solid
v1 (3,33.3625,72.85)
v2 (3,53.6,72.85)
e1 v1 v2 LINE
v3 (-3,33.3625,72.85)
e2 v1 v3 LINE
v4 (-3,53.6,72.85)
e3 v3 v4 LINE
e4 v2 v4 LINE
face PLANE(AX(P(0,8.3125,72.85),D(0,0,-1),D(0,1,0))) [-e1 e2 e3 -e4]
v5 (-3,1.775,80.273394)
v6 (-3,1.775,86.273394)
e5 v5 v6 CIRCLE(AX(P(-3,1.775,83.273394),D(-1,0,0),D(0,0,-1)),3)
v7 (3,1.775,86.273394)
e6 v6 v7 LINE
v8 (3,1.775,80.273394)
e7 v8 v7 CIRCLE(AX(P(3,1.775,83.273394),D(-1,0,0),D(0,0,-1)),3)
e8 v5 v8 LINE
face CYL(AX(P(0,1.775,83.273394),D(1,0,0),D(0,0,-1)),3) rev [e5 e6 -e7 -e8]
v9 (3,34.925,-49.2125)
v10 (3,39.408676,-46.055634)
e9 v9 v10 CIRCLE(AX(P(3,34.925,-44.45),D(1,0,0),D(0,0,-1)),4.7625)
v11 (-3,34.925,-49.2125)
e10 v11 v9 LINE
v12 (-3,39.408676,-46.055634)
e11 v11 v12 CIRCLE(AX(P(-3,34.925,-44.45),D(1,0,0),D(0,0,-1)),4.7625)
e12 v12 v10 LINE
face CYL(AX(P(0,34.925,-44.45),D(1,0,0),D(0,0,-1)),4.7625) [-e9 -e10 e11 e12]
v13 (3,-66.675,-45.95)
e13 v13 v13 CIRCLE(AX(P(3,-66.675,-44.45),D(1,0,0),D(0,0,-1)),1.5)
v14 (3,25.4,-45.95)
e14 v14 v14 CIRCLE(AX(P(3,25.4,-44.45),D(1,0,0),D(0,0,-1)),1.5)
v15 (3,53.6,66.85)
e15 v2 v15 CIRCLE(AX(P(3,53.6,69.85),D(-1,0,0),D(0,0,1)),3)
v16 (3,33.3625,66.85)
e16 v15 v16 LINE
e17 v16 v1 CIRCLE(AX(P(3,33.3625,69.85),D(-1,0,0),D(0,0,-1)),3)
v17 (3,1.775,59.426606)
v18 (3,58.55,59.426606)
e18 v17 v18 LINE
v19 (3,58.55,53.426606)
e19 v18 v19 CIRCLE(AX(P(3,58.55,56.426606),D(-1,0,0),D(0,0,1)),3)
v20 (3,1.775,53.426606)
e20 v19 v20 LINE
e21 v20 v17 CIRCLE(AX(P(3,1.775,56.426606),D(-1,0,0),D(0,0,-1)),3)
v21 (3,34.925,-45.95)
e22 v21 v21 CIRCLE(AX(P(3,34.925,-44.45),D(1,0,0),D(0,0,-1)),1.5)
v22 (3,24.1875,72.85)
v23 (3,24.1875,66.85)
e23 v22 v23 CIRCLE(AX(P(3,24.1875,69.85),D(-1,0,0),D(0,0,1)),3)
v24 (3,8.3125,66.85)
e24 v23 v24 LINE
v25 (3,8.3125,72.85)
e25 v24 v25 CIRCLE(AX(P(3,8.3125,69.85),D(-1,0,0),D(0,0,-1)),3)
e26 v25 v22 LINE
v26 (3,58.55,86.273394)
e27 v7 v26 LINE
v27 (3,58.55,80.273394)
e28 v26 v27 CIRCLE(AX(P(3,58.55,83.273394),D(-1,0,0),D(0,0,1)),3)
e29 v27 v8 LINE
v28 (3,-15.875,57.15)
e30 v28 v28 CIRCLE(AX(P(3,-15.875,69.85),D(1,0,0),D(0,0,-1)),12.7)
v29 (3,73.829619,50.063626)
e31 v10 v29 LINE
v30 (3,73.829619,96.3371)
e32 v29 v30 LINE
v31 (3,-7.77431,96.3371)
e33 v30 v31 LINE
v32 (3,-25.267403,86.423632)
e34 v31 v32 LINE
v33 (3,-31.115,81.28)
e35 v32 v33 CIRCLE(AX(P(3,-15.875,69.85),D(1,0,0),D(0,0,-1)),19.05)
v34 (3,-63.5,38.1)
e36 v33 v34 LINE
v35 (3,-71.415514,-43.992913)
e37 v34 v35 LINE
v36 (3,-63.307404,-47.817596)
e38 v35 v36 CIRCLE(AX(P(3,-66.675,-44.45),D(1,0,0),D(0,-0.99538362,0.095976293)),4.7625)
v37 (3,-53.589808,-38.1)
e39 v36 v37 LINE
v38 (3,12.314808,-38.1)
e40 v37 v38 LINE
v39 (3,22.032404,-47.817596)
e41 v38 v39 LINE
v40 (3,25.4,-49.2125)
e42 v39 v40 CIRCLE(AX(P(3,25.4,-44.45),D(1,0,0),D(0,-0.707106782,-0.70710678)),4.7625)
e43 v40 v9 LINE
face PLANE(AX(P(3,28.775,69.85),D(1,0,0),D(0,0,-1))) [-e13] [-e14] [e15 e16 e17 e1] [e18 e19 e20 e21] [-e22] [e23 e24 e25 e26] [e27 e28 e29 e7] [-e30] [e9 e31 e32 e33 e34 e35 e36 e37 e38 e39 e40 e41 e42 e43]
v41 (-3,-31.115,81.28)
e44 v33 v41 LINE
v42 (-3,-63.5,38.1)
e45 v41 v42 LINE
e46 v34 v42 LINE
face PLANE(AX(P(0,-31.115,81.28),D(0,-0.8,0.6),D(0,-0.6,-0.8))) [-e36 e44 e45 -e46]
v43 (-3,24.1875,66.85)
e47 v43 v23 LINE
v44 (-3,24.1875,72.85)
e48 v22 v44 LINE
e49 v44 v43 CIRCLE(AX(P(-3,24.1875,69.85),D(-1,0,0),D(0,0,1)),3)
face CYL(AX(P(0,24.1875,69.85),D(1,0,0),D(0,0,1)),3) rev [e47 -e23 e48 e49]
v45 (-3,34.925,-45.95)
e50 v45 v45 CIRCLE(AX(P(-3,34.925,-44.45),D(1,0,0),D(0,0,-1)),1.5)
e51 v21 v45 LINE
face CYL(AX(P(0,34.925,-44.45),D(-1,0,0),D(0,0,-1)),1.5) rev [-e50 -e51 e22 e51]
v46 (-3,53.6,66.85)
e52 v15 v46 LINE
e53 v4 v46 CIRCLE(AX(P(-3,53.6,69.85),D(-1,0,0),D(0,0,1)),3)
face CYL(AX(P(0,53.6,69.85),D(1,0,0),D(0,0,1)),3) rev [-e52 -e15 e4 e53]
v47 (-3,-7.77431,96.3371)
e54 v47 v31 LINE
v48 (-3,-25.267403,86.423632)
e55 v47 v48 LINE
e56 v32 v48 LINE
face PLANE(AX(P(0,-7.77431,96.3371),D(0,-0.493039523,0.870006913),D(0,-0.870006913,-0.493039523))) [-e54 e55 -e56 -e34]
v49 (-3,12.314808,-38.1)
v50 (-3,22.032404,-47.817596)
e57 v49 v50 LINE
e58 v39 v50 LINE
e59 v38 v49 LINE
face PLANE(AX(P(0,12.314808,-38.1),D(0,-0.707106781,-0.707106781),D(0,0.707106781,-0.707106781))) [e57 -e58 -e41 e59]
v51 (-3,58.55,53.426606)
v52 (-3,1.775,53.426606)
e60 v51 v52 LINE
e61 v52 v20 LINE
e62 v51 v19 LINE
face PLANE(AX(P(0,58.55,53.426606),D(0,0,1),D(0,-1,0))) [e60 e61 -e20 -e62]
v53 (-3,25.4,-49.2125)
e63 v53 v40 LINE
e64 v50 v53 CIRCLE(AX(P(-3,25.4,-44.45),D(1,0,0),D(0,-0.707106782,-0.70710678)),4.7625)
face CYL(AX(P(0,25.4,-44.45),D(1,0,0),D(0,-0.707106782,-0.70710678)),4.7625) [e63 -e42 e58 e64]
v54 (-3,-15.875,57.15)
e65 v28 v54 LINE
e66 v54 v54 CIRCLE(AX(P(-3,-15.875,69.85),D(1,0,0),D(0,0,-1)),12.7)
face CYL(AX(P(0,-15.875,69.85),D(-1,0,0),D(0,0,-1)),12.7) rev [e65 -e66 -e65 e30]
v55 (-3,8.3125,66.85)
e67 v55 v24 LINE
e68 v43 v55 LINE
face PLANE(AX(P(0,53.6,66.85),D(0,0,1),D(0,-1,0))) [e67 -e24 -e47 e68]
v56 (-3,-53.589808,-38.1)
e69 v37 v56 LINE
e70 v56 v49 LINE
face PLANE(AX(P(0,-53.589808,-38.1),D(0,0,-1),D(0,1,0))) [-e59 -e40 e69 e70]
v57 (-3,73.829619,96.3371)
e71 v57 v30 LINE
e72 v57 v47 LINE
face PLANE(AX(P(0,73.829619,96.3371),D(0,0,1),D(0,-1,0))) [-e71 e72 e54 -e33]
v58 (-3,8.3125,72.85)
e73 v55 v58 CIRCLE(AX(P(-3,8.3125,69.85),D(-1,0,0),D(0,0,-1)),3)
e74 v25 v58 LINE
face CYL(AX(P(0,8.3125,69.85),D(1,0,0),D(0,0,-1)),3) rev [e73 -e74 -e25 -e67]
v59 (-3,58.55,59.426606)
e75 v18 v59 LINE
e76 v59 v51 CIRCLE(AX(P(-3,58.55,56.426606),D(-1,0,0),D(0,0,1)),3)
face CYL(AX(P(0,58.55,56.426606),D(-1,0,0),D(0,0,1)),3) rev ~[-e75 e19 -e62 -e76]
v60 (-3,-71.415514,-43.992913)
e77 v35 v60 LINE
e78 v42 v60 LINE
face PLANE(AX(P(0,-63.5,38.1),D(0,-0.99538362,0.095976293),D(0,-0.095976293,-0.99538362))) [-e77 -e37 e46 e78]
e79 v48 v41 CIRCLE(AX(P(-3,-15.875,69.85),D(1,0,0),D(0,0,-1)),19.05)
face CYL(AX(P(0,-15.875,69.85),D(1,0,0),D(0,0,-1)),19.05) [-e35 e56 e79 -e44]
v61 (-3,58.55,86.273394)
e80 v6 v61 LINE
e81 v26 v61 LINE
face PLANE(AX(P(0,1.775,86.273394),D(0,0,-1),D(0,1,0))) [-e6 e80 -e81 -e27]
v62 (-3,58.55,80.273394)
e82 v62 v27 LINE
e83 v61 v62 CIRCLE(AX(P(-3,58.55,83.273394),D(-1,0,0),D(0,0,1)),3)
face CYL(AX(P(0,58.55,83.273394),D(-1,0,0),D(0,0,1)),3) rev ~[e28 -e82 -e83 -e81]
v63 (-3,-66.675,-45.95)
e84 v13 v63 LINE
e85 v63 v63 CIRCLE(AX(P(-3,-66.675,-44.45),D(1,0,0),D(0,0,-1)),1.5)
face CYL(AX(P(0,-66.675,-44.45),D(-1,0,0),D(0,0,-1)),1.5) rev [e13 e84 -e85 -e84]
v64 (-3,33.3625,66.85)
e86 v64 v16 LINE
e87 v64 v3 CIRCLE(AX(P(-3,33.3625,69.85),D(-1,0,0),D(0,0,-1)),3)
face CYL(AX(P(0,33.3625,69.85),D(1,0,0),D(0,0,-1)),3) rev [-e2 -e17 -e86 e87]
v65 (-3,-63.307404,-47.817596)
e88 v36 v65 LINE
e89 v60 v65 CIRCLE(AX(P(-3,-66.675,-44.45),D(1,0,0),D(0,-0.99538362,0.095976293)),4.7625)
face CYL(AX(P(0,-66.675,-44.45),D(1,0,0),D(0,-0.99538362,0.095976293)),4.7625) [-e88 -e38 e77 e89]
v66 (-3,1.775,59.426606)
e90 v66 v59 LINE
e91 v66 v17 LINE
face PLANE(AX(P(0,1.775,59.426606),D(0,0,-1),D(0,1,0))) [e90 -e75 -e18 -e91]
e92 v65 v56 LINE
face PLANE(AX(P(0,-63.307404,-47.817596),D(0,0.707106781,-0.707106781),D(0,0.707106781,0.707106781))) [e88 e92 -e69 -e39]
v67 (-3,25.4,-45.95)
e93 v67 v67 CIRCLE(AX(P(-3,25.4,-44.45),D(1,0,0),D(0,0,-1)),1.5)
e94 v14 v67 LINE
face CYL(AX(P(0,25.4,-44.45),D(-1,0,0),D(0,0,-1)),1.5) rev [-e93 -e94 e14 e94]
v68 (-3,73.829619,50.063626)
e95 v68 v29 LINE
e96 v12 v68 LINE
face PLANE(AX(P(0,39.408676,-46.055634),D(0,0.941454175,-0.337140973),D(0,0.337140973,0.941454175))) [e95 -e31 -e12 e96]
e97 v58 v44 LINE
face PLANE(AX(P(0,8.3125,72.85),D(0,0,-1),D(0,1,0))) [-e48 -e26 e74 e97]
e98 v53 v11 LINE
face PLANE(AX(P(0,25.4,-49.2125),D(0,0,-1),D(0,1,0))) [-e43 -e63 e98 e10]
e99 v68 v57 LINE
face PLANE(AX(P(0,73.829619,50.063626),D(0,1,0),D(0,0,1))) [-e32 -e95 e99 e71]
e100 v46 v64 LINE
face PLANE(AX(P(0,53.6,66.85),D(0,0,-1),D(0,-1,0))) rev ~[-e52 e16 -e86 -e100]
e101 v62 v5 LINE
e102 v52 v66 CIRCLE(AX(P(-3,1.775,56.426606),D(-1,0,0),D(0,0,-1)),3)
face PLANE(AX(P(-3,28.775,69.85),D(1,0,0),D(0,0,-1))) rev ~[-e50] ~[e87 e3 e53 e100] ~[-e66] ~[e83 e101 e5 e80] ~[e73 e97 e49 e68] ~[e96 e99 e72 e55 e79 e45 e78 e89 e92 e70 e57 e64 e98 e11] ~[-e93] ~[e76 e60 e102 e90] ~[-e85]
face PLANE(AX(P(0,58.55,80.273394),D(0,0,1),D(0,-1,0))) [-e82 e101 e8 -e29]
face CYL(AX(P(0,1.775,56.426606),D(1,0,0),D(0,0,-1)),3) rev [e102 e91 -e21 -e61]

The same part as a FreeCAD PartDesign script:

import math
import FreeCAD as App
import Part
import Sketcher
from FreeCAD import Vector
Q = App.Units.Quantity

doc = App.newDocument("Part")
body = doc.addObject("PartDesign::Body", "Body")

sketch1 = body.newObject("Sketcher::SketchObject", "Sketch")
sketch1.AttachmentSupport = (doc.getObject("YZ_Plane"), [""])
sketch1.MapMode = "FlatFace"
sketch1.addGeometry(Part.ArcOfCircle(Part.Circle(Vector(25.4, -44.45, 0), Vector(0, 0, 1), 4.7625), math.radians(-135), math.radians(-90)), False)
sketch1.addGeometry(Part.LineSegment(Vector(25.4, -49.2125, 0), Vector(34.925, -49.2125, 0)), False)
sketch1.addGeometry(Part.ArcOfCircle(Part.Circle(Vector(34.925, -44.45, 0), Vector(0, 0, 1), 4.7625), math.radians(-90), math.radians(-19.702782)), False)
sketch1.addGeometry(Part.LineSegment(Vector(39.408676, -46.055634, 0), Vector(73.829619, 50.063626, 0)), False)
sketch1.addGeometry(Part.LineSegment(Vector(73.829619, 50.063626, 0), Vector(73.829619, 96.3371, 0)), False)
sketch1.addGeometry(Part.LineSegment(Vector(73.829619, 96.3371, 0), Vector(-7.77431, 96.3371, 0)), False)
sketch1.addGeometry(Part.LineSegment(Vector(-7.77431, 96.3371, 0), Vector(-25.267403, 86.423632, 0)), False)
sketch1.addGeometry(Part.ArcOfCircle(Part.Circle(Vector(-15.875, 69.85, 0), Vector(0, 0, 1), 19.05), math.radians(119.540557), math.radians(143.130102)), False)
sketch1.addGeometry(Part.LineSegment(Vector(-31.115, 81.28, 0), Vector(-63.5, 38.1, 0)), False)
sketch1.addGeometry(Part.LineSegment(Vector(-63.5, 38.1, 0), Vector(-71.415514, -43.992913, 0)), False)
sketch1.addGeometry(Part.ArcOfCircle(Part.Circle(Vector(-66.675, -44.45, 0), Vector(0, 0, 1), 4.7625), math.radians(174.492486), math.radians(315)), False)
sketch1.addGeometry(Part.LineSegment(Vector(-63.307404, -47.817596, 0), Vector(-53.589808, -38.1, 0)), False)
sketch1.addGeometry(Part.LineSegment(Vector(-53.589808, -38.1, 0), Vector(12.314808, -38.1, 0)), False)
sketch1.addGeometry(Part.LineSegment(Vector(12.314808, -38.1, 0), Vector(22.032404, -47.817596, 0)), False)
sketch1.addGeometry(Part.Circle(Vector(-66.675, -44.45, 0), Vector(0, 0, 1), 1.5), False)
sketch1.addGeometry(Part.LineSegment(Vector(58.55, 80.273394, 0), Vector(1.775, 80.273394, 0)), False)
sketch1.addGeometry(Part.ArcOfCircle(Part.Circle(Vector(1.775, 83.273394, 0), Vector(0, 0, 1), 3), math.radians(90), math.radians(270)), False)
sketch1.addGeometry(Part.LineSegment(Vector(1.775, 86.273394, 0), Vector(58.55, 86.273394, 0)), False)
sketch1.addGeometry(Part.ArcOfCircle(Part.Circle(Vector(58.55, 83.273394, 0), Vector(0, 0, 1), 3), math.radians(-90), math.radians(90)), False)
sketch1.addGeometry(Part.LineSegment(Vector(53.6, 66.85, 0), Vector(33.3625, 66.85, 0)), False)
sketch1.addGeometry(Part.ArcOfCircle(Part.Circle(Vector(33.3625, 69.85, 0), Vector(0, 0, 1), 3), math.radians(90), math.radians(270)), False)
sketch1.addGeometry(Part.LineSegment(Vector(33.3625, 72.85, 0), Vector(53.6, 72.85, 0)), False)
sketch1.addGeometry(Part.ArcOfCircle(Part.Circle(Vector(53.6, 69.85, 0), Vector(0, 0, 1), 3), math.radians(-90), math.radians(90)), False)
sketch1.addGeometry(Part.LineSegment(Vector(24.1875, 66.85, 0), Vector(8.3125, 66.85, 0)), False)
sketch1.addGeometry(Part.ArcOfCircle(Part.Circle(Vector(8.3125, 69.85, 0), Vector(0, 0, 1), 3), math.radians(90), math.radians(270)), False)
sketch1.addGeometry(Part.LineSegment(Vector(8.3125, 72.85, 0), Vector(24.1875, 72.85, 0)), False)
sketch1.addGeometry(Part.ArcOfCircle(Part.Circle(Vector(24.1875, 69.85, 0), Vector(0, 0, 1), 3), math.radians(-90), math.radians(90)), False)
sketch1.addGeometry(Part.LineSegment(Vector(58.55, 53.426606, 0), Vector(1.775, 53.426606, 0)), False)
sketch1.addGeometry(Part.ArcOfCircle(Part.Circle(Vector(1.775, 56.426606, 0), Vector(0, 0, 1), 3), math.radians(90), math.radians(270)), False)
sketch1.addGeometry(Part.LineSegment(Vector(1.775, 59.426606, 0), Vector(58.55, 59.426606, 0)), False)
sketch1.addGeometry(Part.ArcOfCircle(Part.Circle(Vector(58.55, 56.426606, 0), Vector(0, 0, 1), 3), math.radians(-90), math.radians(90)), False)
sketch1.addGeometry(Part.Circle(Vector(25.4, -44.45, 0), Vector(0, 0, 1), 1.5), False)
sketch1.addGeometry(Part.Circle(Vector(34.925, -44.45, 0), Vector(0, 0, 1), 1.5), False)
sketch1.addGeometry(Part.Circle(Vector(-15.875, 69.85, 0), Vector(0, 0, 1), 12.7), False)
sketch1.addConstraint(Sketcher.Constraint("Tangent", 0, 2, 1, 1))
sketch1.addConstraint(Sketcher.Constraint("Tangent", 1, 2, 2, 1))
sketch1.addConstraint(Sketcher.Constraint("Tangent", 2, 2, 3, 1))
sketch1.addConstraint(Sketcher.Constraint("Coincident", 3, 2, 4, 1))
sketch1.addConstraint(Sketcher.Constraint("Coincident", 4, 2, 5, 1))
sketch1.addConstraint(Sketcher.Constraint("Coincident", 5, 2, 6, 1))
sketch1.addConstraint(Sketcher.Constraint("Tangent", 6, 2, 7, 1))
sketch1.addConstraint(Sketcher.Constraint("Tangent", 7, 2, 8, 1))
sketch1.addConstraint(Sketcher.Constraint("Coincident", 8, 2, 9, 1))
sketch1.addConstraint(Sketcher.Constraint("Tangent", 9, 2, 10, 1))
sketch1.addConstraint(Sketcher.Constraint("Tangent", 10, 2, 11, 1))
sketch1.addConstraint(Sketcher.Constraint("Coincident", 11, 2, 12, 1))
sketch1.addConstraint(Sketcher.Constraint("Coincident", 12, 2, 13, 1))
sketch1.addConstraint(Sketcher.Constraint("Tangent", 13, 2, 0, 1))
sketch1.addConstraint(Sketcher.Constraint("Tangent", 15, 2, 16, 2))
sketch1.addConstraint(Sketcher.Constraint("Tangent", 16, 1, 17, 1))
sketch1.addConstraint(Sketcher.Constraint("Tangent", 17, 2, 18, 2))
sketch1.addConstraint(Sketcher.Constraint("Tangent", 18, 1, 15, 1))
sketch1.addConstraint(Sketcher.Constraint("Tangent", 19, 2, 20, 2))
sketch1.addConstraint(Sketcher.Constraint("Tangent", 20, 1, 21, 1))
sketch1.addConstraint(Sketcher.Constraint("Tangent", 21, 2, 22, 2))
sketch1.addConstraint(Sketcher.Constraint("Tangent", 22, 1, 19, 1))
sketch1.addConstraint(Sketcher.Constraint("Tangent", 23, 2, 24, 2))
sketch1.addConstraint(Sketcher.Constraint("Tangent", 24, 1, 25, 1))
sketch1.addConstraint(Sketcher.Constraint("Tangent", 25, 2, 26, 2))
sketch1.addConstraint(Sketcher.Constraint("Tangent", 26, 1, 23, 1))
sketch1.addConstraint(Sketcher.Constraint("Tangent", 27, 2, 28, 2))
sketch1.addConstraint(Sketcher.Constraint("Tangent", 28, 1, 29, 1))
sketch1.addConstraint(Sketcher.Constraint("Tangent", 29, 2, 30, 2))
sketch1.addConstraint(Sketcher.Constraint("Tangent", 30, 1, 27, 1))
sketch1.addConstraint(Sketcher.Constraint("Horizontal", 1))
sketch1.addConstraint(Sketcher.Constraint("Vertical", 4))
sketch1.addConstraint(Sketcher.Constraint("Horizontal", 5))
sketch1.addConstraint(Sketcher.Constraint("Horizontal", 12))
sketch1.addConstraint(Sketcher.Constraint("Horizontal", 15))
sketch1.addConstraint(Sketcher.Constraint("Horizontal", 17))
sketch1.addConstraint(Sketcher.Constraint("Horizontal", 19))
sketch1.addConstraint(Sketcher.Constraint("Horizontal", 21))
sketch1.addConstraint(Sketcher.Constraint("Horizontal", 23))
sketch1.addConstraint(Sketcher.Constraint("Horizontal", 25))
sketch1.addConstraint(Sketcher.Constraint("Horizontal", 27))
sketch1.addConstraint(Sketcher.Constraint("Horizontal", 29))
sketch1.addConstraint(Sketcher.Constraint("Coincident", 14, 3, 10, 3))
sketch1.addConstraint(Sketcher.Constraint("Coincident", 31, 3, 0, 3))
sketch1.addConstraint(Sketcher.Constraint("Coincident", 32, 3, 2, 3))
sketch1.addConstraint(Sketcher.Constraint("Coincident", 33, 3, 7, 3))
sketch1.addConstraint(Sketcher.Constraint("Equal", 0, 2))
sketch1.addConstraint(Sketcher.Constraint("Equal", 2, 10))
sketch1.addConstraint(Sketcher.Constraint("Equal", 18, 20))
sketch1.addConstraint(Sketcher.Constraint("Equal", 22, 24))
sketch1.addConstraint(Sketcher.Constraint("Equal", 26, 28))
sketch1.addConstraint(Sketcher.Constraint("Equal", 14, 31))
sketch1.addConstraint(Sketcher.Constraint("Equal", 31, 32))
sketch1.addConstraint(Sketcher.Constraint("Perpendicular", 11, 13))
sketch1.addConstraint(Sketcher.Constraint("Horizontal", 2, 3, 10, 3))
sketch1.addConstraint(Sketcher.Constraint("Horizontal", 7, 3, 20, 3))
sketch1.addConstraint(Sketcher.Constraint("Horizontal", 22, 3, 24, 3))
sketch1.addConstraint(Sketcher.Constraint("Horizontal", 10, 2, 13, 2))
sketch1.addConstraint(Sketcher.Constraint("Vertical", 16, 3, 28, 3))
sketch1.addConstraint(Sketcher.Constraint("Vertical", 18, 3, 30, 3))
sketch1.addConstraint(Sketcher.Constraint("Diameter", 33, Q("1 in")))
sketch1.addConstraint(Sketcher.Constraint("Radius", 7, Q("0.75 in")))
sketch1.addConstraint(Sketcher.Constraint("DistanceX", -1, 1, 0, 3, Q("1 in")))
sketch1.addConstraint(Sketcher.Constraint("Radius", 0, Q("0.1875 in")))
sketch1.addConstraint(Sketcher.Constraint("DistanceX", 7, 3, 2, 3, Q("2 in")))
sketch1.addConstraint(Sketcher.Constraint("DistanceX", 10, 3, 2, 3, Q("4 in")))
sketch1.addConstraint(Sketcher.Constraint("DistanceY", 11, 2, 8, 2, Q("3 in")))
sketch1.addConstraint(Sketcher.Constraint("DistanceY", -1, 1, 7, 2, Q("3.2 in")))
sketch1.addConstraint(Sketcher.Constraint("DistanceX", 8, 2, -1, 1, Q("2.5 in")))
sketch1.addConstraint(Sketcher.Constraint("DistanceY", -1, 1, 8, 2, Q("1.5 in")))
sketch1.addConstraint(Sketcher.Constraint("DistanceY", 0, 3, 7, 3, Q("4.5 in")))
sketch1.addConstraint(Sketcher.Constraint("DistanceX", 7, 2, 7, 3, Q("0.6 in")))
sketch1.addConstraint(Sketcher.Constraint("Diameter", 14, Q("3 mm")))
sketch1.addConstraint(Sketcher.Constraint("DistanceX", 23, 2, 23, 1, Q("0.625 in")))
sketch1.addConstraint(Sketcher.Constraint("Radius", 16, Q("3 mm")))
sketch1.addConstraint(Sketcher.Constraint("DistanceX", 15, 2, 15, 1, Q("56.775 mm")))
sketch1.addConstraint(Sketcher.Constraint("DistanceX", 19, 2, 19, 1, Q("20.2375 mm")))
sketch1.addConstraint(Sketcher.Constraint("DistanceX", 5, 2, 5, 1, Q("81.603929 mm")))
sketch1.addConstraint(Sketcher.Constraint("DistanceX", -1, 1, 16, 3, Q("1.775 mm")))
sketch1.addConstraint(Sketcher.Constraint("DistanceX", -1, 1, 20, 3, Q("33.3625 mm")))
sketch1.addConstraint(Sketcher.Constraint("DistanceX", -1, 1, 24, 3, Q("8.3125 mm")))
sketch1.addConstraint(Sketcher.Constraint("DistanceY", -1, 1, 4, 2, Q("96.3371 mm")))
sketch1.addConstraint(Sketcher.Constraint("Distance", 3, Q("102.096589 mm")))
sketch1.addConstraint(Sketcher.Constraint("DistanceY", 4, 1, 4, 2, Q("46.273474 mm")))
sketch1.addConstraint(Sketcher.Constraint("DistanceY", 3, 2, 30, 3, Q("6.36298 mm")))
sketch1.addConstraint(Sketcher.Constraint("DistanceY", -1, 1, 16, 3, Q("83.273394 mm")))
pad1 = body.newObject("PartDesign::Pad", "Pad")
pad1.Profile = sketch1
pad1.Length = 6
pad1.Midplane = True

doc.recompute()
